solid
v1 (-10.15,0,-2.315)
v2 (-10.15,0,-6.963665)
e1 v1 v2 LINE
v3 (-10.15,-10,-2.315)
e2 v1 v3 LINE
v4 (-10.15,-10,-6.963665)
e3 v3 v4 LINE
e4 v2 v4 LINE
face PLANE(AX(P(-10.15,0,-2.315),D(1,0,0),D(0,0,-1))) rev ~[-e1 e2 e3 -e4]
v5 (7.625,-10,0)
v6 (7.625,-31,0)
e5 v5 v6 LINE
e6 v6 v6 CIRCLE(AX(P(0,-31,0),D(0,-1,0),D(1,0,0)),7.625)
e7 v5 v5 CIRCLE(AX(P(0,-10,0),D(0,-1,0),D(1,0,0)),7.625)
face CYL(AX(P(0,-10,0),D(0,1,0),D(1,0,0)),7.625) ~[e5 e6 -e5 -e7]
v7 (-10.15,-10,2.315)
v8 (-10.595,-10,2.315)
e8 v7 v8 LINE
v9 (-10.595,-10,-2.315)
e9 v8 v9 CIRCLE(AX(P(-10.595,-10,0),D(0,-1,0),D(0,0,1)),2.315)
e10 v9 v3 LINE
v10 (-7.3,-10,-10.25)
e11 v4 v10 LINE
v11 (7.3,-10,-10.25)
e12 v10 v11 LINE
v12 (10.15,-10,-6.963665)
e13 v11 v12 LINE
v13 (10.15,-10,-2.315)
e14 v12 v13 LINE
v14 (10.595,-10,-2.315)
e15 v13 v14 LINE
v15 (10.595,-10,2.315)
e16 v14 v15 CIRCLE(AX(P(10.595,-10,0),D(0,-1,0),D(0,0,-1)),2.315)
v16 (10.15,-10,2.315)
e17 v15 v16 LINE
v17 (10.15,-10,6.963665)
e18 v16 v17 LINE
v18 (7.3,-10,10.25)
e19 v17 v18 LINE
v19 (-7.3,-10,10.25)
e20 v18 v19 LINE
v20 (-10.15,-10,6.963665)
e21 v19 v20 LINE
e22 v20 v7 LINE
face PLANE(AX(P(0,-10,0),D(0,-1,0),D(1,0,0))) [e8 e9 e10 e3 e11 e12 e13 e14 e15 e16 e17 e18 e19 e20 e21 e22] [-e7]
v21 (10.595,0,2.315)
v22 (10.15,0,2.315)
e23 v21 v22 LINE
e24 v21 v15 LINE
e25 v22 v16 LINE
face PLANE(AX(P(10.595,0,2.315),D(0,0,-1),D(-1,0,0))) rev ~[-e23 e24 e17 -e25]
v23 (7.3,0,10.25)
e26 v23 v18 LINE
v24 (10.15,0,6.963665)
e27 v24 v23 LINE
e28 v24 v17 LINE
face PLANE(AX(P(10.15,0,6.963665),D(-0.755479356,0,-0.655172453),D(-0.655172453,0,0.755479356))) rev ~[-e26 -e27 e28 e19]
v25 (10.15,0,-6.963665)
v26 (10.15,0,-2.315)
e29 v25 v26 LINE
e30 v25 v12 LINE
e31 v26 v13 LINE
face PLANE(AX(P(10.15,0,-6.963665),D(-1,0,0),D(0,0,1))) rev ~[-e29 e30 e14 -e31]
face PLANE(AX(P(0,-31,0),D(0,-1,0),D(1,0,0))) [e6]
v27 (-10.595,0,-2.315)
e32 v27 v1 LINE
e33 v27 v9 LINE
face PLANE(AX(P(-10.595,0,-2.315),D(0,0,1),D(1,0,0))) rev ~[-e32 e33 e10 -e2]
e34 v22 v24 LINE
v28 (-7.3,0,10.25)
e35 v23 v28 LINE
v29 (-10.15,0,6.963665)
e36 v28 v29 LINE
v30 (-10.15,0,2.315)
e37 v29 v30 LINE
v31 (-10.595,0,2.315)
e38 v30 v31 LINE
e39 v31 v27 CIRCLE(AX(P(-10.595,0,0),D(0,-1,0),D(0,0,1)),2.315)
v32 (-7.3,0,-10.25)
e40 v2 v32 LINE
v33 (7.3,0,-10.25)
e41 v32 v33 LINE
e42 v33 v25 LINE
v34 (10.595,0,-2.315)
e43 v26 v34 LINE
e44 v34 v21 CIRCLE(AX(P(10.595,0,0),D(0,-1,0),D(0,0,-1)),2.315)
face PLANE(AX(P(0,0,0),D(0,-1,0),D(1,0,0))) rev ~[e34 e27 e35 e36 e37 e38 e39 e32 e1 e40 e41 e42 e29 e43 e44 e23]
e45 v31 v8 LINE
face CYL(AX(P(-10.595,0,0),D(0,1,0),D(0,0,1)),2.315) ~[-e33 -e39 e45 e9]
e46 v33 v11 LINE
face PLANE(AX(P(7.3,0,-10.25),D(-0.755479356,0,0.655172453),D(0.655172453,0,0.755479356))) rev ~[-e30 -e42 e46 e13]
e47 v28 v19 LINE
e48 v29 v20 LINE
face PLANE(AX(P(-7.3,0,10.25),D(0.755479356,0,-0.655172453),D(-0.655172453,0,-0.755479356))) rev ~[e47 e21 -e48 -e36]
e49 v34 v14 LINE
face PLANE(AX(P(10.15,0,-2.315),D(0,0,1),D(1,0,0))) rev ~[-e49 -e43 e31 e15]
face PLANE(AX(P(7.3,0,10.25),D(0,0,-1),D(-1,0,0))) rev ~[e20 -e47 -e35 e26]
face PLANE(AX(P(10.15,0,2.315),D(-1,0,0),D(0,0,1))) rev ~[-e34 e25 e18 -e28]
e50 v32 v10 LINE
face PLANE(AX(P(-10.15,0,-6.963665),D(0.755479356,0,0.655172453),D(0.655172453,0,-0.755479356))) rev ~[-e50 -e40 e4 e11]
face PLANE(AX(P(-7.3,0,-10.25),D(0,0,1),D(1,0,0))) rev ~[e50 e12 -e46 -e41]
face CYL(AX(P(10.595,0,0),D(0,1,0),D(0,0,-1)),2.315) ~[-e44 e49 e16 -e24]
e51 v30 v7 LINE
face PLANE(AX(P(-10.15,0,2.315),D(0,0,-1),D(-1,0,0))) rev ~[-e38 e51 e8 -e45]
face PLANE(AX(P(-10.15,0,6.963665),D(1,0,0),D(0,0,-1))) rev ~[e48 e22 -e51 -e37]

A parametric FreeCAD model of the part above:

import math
import FreeCAD as App
import Part
import Sketcher

doc = App.newDocument("Part")
body = doc.addObject("PartDesign::Body", "Body")

# Sketch on XZ plane
sketch1 = body.newObject("Sketcher::SketchObject", "Sketch")
sketch1.AttachmentSupport = (doc.getObject("XZ_Plane"), [""])
sketch1.MapMode = "FlatFace"
sketch1.addGeometry([
    Part.LineSegment(App.Vector(-7.3, 10.25, 0), App.Vector(-10.15, 6.96, 0)),  # 0
    Part.LineSegment(App.Vector(-10.15, 6.96, 0), App.Vector(-10.15, 2.31, 0)),  # 1
    Part.LineSegment(App.Vector(-10.15, 2.31, 0), App.Vector(-10.6, 2.31, 0)),  # 2
    Part.ArcOfCircle(Part.Circle(App.Vector(-10.6, 0, 0), App.Vector(0, 0, 1), 2.31), math.radians(90), math.radians(270)),  # 3
    Part.LineSegment(App.Vector(-10.6, -2.31, 0), App.Vector(-10.15, -2.31, 0)),  # 4
    Part.LineSegment(App.Vector(-10.15, -2.31, 0), App.Vector(-10.15, -6.96, 0)),  # 5
    Part.LineSegment(App.Vector(-10.15, -6.96, 0), App.Vector(-7.3, -10.25, 0)),  # 6
    Part.LineSegment(App.Vector(-7.3, -10.25, 0), App.Vector(7.3, -10.25, 0)),  # 7
    Part.LineSegment(App.Vector(7.3, -10.25, 0), App.Vector(10.15, -6.96, 0)),  # 8
    Part.LineSegment(App.Vector(10.15, -6.96, 0), App.Vector(10.15, -2.31, 0)),  # 9
    Part.LineSegment(App.Vector(10.15, -2.31, 0), App.Vector(10.6, -2.31, 0)),  # 10
    Part.ArcOfCircle(Part.Circle(App.Vector(10.6, 0, 0), App.Vector(0, 0, 1), 2.31), math.radians(-90), math.radians(90)),  # 11
    Part.LineSegment(App.Vector(10.6, 2.31, 0), App.Vector(10.15, 2.31, 0)),  # 12
    Part.LineSegment(App.Vector(10.15, 2.31, 0), App.Vector(10.15, 6.96, 0)),  # 13
    Part.LineSegment(App.Vector(10.15, 6.96, 0), App.Vector(7.3, 10.25, 0)),  # 14
    Part.LineSegment(App.Vector(7.3, 10.25, 0), App.Vector(-7.3, 10.25, 0)),  # 15
], False)
sketch1.addConstraint([
    Sketcher.Constraint("Coincident", 0, 2, 1, 1),
    Sketcher.Constraint("Coincident", 1, 2, 2, 1),
    Sketcher.Constraint("Tangent", 2, 2, 3, 1),
    Sketcher.Constraint("Tangent", 3, 2, 4, 1),
    Sketcher.Constraint("Coincident", 4, 2, 5, 1),
    Sketcher.Constraint("Coincident", 5, 2, 6, 1),
    Sketcher.Constraint("Coincident", 6, 2, 7, 1),
    Sketcher.Constraint("Coincident", 7, 2, 8, 1),
    Sketcher.Constraint("Coincident", 8, 2, 9, 1),
    Sketcher.Constraint("Coincident", 9, 2, 10, 1),
    Sketcher.Constraint("Tangent", 10, 2, 11, 1),
    Sketcher.Constraint("Tangent", 11, 2, 12, 1),
    Sketcher.Constraint("Coincident", 12, 2, 13, 1),
    Sketcher.Constraint("Coincident", 13, 2, 14, 1),
    Sketcher.Constraint("Coincident", 14, 2, 15, 1),
    Sketcher.Constraint("Coincident", 15, 2, 0, 1),
    Sketcher.Constraint("Vertical", 1),
    Sketcher.Constraint("Horizontal", 2),
    Sketcher.Constraint("Horizontal", 4),
    Sketcher.Constraint("Vertical", 5),
    Sketcher.Constraint("Horizontal", 7),
    Sketcher.Constraint("Vertical", 9),
    Sketcher.Constraint("Horizontal", 10),
    Sketcher.Constraint("Horizontal", 12),
    Sketcher.Constraint("Vertical", 13),
    Sketcher.Constraint("Horizontal", 15),
    Sketcher.Constraint("Equal", 3, 11),
    Sketcher.Constraint("Symmetric", 3, 3, 11, 3, -1, 1),
    Sketcher.Constraint("Symmetric", 0, 2, 8, 2, -1, 1),
    Sketcher.Constraint("Symmetric", 5, 2, 13, 2, -1, 1),
    Sketcher.Constraint("Symmetric", 6, 2, 14, 2, -1, 1),
    Sketcher.Constraint("Symmetric", 5, 2, 8, 2, -2),
    Sketcher.Constraint("PointOnObject", 3, 3, -1),
    Sketcher.Constraint("Parallel", 0, 8),
    Sketcher.Constraint("Vertical", 7, 2, 14, 2),
    Sketcher.Constraint("DistanceX", 7, 1, 7, 2, 14.6),
    Sketcher.Constraint("Radius", 3, 2.315),
    Sketcher.Constraint("DistanceX", 5, 2, 8, 2, 20.3),
    Sketcher.Constraint("Distance", 0, 4.35),
    Sketcher.Constraint("DistanceX", 2, 2, 2, 1, 0.445),
    Sketcher.Constraint("DistanceY", 6, 2, -1, 1, 10.25),
])
pad1 = body.newObject("PartDesign::Pad", "Pad")
pad1.Profile = sketch1
pad1.Length = 10

# Sketch on XZ plane
sketch2 = body.newObject("Sketcher::SketchObject", "Sketch001")
sketch2.AttachmentSupport = (doc.getObject("XZ_Plane"), [""])
sketch2.MapMode = "FlatFace"
sketch2.AttachmentOffset = App.Placement(App.Vector(0, 0, 10), App.Rotation())
sketch2.addGeometry(Part.Circle(App.Vector(0, 0, 0), App.Vector(0, 0, 1), 8), False)
sketch2.addConstraint([
    Sketcher.Constraint("Coincident", 0, 3, -1, 1),
    Sketcher.Constraint("Diameter", 0, 15.25),
])
pad2 = body.newObject("PartDesign::Pad", "Pad001")
pad2.Profile = sketch2
pad2.Length = 21

doc.recompute()
